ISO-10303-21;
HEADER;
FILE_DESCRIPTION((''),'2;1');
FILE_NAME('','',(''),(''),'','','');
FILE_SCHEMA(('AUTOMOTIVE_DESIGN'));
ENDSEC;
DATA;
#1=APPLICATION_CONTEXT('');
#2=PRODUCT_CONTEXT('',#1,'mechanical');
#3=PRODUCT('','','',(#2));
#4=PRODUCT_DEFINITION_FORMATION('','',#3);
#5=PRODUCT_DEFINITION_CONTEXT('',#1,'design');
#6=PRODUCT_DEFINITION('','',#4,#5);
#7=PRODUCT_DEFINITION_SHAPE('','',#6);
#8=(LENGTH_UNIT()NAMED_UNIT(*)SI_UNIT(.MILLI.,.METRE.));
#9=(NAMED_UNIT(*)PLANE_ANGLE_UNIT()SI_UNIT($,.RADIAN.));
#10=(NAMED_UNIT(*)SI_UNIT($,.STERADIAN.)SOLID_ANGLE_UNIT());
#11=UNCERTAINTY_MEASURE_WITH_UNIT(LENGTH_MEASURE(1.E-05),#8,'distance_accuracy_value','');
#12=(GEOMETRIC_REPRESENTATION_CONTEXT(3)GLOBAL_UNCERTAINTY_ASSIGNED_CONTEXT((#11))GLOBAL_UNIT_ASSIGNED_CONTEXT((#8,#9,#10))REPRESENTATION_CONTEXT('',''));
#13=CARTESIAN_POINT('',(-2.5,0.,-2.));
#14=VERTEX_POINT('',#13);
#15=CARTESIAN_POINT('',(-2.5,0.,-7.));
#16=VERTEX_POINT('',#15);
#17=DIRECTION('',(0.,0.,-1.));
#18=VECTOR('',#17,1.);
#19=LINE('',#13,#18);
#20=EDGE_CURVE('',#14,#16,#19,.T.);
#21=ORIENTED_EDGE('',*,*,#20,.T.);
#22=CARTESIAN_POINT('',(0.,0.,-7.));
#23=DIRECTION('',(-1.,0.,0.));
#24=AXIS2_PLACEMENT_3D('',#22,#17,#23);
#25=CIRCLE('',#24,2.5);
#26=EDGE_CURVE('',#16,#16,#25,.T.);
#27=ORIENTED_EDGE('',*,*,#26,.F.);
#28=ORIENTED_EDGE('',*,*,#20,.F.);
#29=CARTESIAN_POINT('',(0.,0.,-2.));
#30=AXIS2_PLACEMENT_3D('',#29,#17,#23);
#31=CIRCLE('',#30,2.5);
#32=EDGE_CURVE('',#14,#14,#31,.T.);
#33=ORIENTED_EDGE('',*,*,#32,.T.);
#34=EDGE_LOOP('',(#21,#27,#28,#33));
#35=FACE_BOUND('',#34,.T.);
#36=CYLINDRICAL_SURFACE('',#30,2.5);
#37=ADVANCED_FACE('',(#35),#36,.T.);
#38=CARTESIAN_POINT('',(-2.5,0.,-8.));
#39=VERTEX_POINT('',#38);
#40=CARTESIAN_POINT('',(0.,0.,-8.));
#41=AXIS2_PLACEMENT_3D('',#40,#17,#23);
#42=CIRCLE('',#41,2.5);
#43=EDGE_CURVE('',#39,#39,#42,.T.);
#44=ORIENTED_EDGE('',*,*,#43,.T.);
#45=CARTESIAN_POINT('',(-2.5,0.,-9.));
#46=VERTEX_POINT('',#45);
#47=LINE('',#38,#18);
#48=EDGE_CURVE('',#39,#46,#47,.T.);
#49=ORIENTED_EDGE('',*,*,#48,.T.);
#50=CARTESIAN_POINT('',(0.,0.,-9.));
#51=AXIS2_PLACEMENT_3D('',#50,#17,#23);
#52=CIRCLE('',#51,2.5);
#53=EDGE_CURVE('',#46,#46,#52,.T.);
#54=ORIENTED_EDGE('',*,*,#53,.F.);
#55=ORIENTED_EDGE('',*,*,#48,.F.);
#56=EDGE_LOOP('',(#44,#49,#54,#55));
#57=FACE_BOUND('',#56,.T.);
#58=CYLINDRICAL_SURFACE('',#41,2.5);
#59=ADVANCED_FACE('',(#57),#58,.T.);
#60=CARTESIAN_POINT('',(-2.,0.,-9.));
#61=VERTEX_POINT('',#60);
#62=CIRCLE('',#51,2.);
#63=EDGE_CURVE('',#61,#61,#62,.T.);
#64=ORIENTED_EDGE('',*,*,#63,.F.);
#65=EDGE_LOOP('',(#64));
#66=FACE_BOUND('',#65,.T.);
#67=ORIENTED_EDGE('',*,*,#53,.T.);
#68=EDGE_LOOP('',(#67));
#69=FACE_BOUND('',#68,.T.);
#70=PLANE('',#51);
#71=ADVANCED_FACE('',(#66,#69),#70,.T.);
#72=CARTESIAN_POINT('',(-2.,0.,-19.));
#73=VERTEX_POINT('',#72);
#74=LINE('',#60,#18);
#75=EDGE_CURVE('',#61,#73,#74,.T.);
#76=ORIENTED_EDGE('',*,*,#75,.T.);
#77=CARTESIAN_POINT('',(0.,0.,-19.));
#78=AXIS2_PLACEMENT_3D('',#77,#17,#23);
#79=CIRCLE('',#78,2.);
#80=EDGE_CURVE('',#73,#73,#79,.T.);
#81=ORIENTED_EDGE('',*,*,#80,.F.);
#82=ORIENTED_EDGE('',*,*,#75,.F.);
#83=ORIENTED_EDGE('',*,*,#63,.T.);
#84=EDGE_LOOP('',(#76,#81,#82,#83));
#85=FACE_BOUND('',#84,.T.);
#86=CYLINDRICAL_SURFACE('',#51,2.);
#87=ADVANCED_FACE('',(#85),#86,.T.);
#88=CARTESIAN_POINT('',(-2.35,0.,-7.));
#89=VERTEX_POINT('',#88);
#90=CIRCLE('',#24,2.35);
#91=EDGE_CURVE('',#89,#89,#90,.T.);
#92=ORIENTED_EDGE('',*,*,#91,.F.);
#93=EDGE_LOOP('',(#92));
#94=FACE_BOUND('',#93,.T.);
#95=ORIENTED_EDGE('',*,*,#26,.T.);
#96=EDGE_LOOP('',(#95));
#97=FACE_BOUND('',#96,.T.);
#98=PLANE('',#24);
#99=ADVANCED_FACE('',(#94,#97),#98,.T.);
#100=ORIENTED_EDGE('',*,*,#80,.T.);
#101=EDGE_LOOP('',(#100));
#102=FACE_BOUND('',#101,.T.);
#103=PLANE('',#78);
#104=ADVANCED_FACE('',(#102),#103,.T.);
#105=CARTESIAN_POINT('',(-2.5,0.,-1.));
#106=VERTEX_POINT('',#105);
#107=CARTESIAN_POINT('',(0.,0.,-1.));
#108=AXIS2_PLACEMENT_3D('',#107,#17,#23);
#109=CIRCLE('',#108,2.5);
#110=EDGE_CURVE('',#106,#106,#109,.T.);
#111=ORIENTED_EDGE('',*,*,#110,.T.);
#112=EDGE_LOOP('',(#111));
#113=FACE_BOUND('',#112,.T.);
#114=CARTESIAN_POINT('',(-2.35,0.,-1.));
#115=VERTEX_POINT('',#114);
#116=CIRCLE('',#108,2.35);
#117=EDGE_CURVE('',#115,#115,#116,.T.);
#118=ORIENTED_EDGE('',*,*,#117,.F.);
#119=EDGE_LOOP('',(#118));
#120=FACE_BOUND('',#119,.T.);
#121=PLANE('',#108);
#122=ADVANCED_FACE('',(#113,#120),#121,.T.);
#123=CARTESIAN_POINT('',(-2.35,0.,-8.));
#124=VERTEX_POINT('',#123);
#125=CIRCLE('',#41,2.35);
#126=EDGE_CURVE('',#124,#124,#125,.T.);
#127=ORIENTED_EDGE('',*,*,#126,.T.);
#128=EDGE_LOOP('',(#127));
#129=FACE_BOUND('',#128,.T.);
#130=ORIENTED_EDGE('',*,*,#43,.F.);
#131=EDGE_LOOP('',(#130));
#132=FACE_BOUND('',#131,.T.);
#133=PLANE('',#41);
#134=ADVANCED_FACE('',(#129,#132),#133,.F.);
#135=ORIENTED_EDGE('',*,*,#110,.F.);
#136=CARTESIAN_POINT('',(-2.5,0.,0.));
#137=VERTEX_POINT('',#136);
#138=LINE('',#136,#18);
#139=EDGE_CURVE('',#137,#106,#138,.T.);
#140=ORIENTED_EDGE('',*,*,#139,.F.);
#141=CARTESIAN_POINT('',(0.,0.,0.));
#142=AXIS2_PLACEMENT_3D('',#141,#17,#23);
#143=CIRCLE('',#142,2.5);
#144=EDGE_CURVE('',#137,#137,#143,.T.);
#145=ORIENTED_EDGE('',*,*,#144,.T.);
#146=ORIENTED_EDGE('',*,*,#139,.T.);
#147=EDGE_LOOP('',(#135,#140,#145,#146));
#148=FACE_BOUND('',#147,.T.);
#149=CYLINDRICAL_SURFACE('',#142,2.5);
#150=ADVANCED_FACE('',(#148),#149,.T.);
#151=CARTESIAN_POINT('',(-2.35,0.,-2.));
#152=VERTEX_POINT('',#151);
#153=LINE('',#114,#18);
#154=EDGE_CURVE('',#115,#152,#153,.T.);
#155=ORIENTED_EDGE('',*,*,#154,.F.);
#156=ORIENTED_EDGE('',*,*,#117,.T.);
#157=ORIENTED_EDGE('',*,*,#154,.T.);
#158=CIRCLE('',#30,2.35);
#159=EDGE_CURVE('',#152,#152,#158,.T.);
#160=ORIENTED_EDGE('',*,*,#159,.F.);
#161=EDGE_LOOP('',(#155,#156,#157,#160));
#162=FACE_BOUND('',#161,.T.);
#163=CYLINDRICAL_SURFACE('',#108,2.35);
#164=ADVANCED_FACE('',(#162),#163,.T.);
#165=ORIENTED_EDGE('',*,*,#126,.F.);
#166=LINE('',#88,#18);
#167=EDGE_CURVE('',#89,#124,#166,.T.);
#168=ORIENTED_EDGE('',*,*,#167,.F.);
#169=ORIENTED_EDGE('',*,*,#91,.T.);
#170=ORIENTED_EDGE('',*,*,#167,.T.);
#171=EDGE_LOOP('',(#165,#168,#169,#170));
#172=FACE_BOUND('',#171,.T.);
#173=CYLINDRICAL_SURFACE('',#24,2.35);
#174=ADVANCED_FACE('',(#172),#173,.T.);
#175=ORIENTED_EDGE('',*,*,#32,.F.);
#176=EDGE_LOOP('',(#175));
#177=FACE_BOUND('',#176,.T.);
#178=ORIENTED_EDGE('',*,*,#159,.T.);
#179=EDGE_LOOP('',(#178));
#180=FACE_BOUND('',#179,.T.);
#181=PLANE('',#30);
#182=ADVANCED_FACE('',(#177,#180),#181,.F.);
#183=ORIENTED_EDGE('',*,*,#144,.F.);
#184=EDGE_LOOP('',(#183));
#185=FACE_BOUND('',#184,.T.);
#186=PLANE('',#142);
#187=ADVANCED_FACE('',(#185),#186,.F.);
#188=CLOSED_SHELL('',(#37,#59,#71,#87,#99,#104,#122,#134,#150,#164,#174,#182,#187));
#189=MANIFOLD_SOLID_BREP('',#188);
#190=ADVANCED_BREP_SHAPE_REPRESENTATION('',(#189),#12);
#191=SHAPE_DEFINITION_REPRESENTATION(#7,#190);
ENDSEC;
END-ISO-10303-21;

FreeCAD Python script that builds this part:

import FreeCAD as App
import Part
import Sketcher
from FreeCAD import Vector

doc = App.newDocument("Part")
body = doc.addObject("PartDesign::Body", "Body")

# Sketch on XZ plane
sketch1 = body.newObject("Sketcher::SketchObject", "Sketch")
sketch1.AttachmentSupport = (doc.getObject("XZ_Plane"), [""])
sketch1.MapMode = "FlatFace"
sketch1.addGeometry(Part.LineSegment(Vector(-2.5, 0, 0), Vector(0, 0, 0)), False)
sketch1.addGeometry(Part.LineSegment(Vector(0, 0, 0), Vector(0, -19, 0)), False)
sketch1.addGeometry(Part.LineSegment(Vector(0, -19, 0), Vector(-2, -19, 0)), False)
sketch1.addGeometry(Part.LineSegment(Vector(-2, -19, 0), Vector(-2, -9, 0)), False)
sketch1.addGeometry(Part.LineSegment(Vector(-2, -9, 0), Vector(-2.5, -9, 0)), False)
sketch1.addGeometry(Part.LineSegment(Vector(-2.5, -9, 0), Vector(-2.5, -8, 0)), False)
sketch1.addGeometry(Part.LineSegment(Vector(-2.5, -8, 0), Vector(-2.35, -8, 0)), False)
sketch1.addGeometry(Part.LineSegment(Vector(-2.35, -8, 0), Vector(-2.35, -7, 0)), False)
sketch1.addGeometry(Part.LineSegment(Vector(-2.35, -7, 0), Vector(-2.5, -7, 0)), False)
sketch1.addGeometry(Part.LineSegment(Vector(-2.5, -7, 0), Vector(-2.5, -2, 0)), False)
sketch1.addGeometry(Part.LineSegment(Vector(-2.5, -2, 0), Vector(-2.35, -2, 0)), False)
sketch1.addGeometry(Part.LineSegment(Vector(-2.35, -2, 0), Vector(-2.35, -1, 0)), False)
sketch1.addGeometry(Part.LineSegment(Vector(-2.35, -1, 0), Vector(-2.5, -1, 0)), False)
sketch1.addGeometry(Part.LineSegment(Vector(-2.5, -1, 0), Vector(-2.5, 0, 0)), False)
sketch1.addConstraint(Sketcher.Constraint("Coincident", 0, 2, 1, 1))
sketch1.addConstraint(Sketcher.Constraint("Coincident", 1, 2, 2, 1))
sketch1.addConstraint(Sketcher.Constraint("Coincident", 2, 2, 3, 1))
sketch1.addConstraint(Sketcher.Constraint("Coincident", 3, 2, 4, 1))
sketch1.addConstraint(Sketcher.Constraint("Coincident", 4, 2, 5, 1))
sketch1.addConstraint(Sketcher.Constraint("Coincident", 5, 2, 6, 1))
sketch1.addConstraint(Sketcher.Constraint("Coincident", 6, 2, 7, 1))
sketch1.addConstraint(Sketcher.Constraint("Coincident", 7, 2, 8, 1))
sketch1.addConstraint(Sketcher.Constraint("Coincident", 8, 2, 9, 1))
sketch1.addConstraint(Sketcher.Constraint("Coincident", 9, 2, 10, 1))
sketch1.addConstraint(Sketcher.Constraint("Coincident", 10, 2, 11, 1))
sketch1.addConstraint(Sketcher.Constraint("Coincident", 11, 2, 12, 1))
sketch1.addConstraint(Sketcher.Constraint("Coincident", 12, 2, 13, 1))
sketch1.addConstraint(Sketcher.Constraint("Coincident", 13, 2, 0, 1))
sketch1.addConstraint(Sketcher.Constraint("Horizontal", 0))
sketch1.addConstraint(Sketcher.Constraint("Vertical", 1))
sketch1.addConstraint(Sketcher.Constraint("Horizontal", 2))
sketch1.addConstraint(Sketcher.Constraint("Vertical", 3))
sketch1.addConstraint(Sketcher.Constraint("Horizontal", 4))
sketch1.addConstraint(Sketcher.Constraint("Vertical", 5))
sketch1.addConstraint(Sketcher.Constraint("Horizontal", 6))
sketch1.addConstraint(Sketcher.Constraint("Vertical", 7))
sketch1.addConstraint(Sketcher.Constraint("Horizontal", 8))
sketch1.addConstraint(Sketcher.Constraint("Vertical", 9))
sketch1.addConstraint(Sketcher.Constraint("Horizontal", 10))
sketch1.addConstraint(Sketcher.Constraint("Vertical", 11))
sketch1.addConstraint(Sketcher.Constraint("Horizontal", 12))
sketch1.addConstraint(Sketcher.Constraint("Vertical", 13))
sketch1.addConstraint(Sketcher.Constraint("Coincident", 0, 2, -1, 1))
sketch1.addConstraint(Sketcher.Constraint("Vertical", 5, 2, 8, 2))
sketch1.addConstraint(Sketcher.Constraint("Vertical", 7, 2, 10, 2))
sketch1.addConstraint(Sketcher.Constraint("Vertical", 9, 2, 12, 2))
sketch1.addConstraint(Sketcher.Constraint("Equal", 5, 7))
sketch1.addConstraint(Sketcher.Constraint("Equal", 7, 11))
sketch1.addConstraint(Sketcher.Constraint("Equal", 11, 13))
sketch1.addConstraint(Sketcher.Constraint("DistanceX", 2, 2, 2, 1, 2.0))
sketch1.addConstraint(Sketcher.Constraint("DistanceY", 5, 1, 5, 2, 1.0))
sketch1.addConstraint(Sketcher.Constraint("DistanceY", 9, 1, 9, 2, 5.0))
sketch1.addConstraint(Sketcher.Constraint("DistanceX", 0, 1, 0, 2, 2.5))
sketch1.addConstraint(Sketcher.Constraint("DistanceX", 6, 1, 6, 2, 0.15))
sketch1.addConstraint(Sketcher.Constraint("DistanceY", 1, 2, 1, 1, 19.0))
revolution = body.newObject("PartDesign::Revolution", "Revolution")
revolution.Profile = sketch1
revolution.ReferenceAxis = (sketch1, ["V_Axis"])
revolution.Angle = 360

doc.recompute()
